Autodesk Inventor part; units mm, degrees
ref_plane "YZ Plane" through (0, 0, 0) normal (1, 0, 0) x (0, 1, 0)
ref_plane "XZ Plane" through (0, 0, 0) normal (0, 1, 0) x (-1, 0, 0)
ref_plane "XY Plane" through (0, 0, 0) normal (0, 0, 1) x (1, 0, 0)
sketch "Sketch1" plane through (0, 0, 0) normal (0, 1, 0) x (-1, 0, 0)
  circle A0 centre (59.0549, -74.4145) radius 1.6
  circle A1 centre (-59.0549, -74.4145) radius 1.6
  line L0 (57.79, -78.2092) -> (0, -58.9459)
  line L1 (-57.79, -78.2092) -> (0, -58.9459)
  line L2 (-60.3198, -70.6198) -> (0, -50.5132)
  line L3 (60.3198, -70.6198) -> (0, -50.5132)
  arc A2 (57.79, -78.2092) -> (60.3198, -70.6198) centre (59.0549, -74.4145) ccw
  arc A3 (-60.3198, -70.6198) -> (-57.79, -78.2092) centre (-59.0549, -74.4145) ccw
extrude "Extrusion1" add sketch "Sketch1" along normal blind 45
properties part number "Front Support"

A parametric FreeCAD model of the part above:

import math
import FreeCAD as App
import Part
import Sketcher
from FreeCAD import Vector
Q = App.Units.Quantity

doc = App.newDocument("Part")
body = doc.addObject("PartDesign::Body", "Body")

# Sketch on XZ plane
sketch1 = body.newObject("Sketcher::SketchObject", "Sketch")
sketch1.AttachmentSupport = (doc.getObject("XZ_Plane"), [""])
sketch1.MapMode = "FlatFace"
sketch1.addGeometry([
    Part.LineSegment(Vector(0, -58.9459, 0), Vector(-57.79, -78.2092, 0)),  # 0
    Part.ArcOfCircle(Part.Circle(Vector(-59.0549, -74.4145, 0), Vector(0, 0, 1), 3.999965), math.radians(108.434949), math.radians(288.434949)),  # 1
    Part.LineSegment(Vector(-60.3198, -70.6198, 0), Vector(0, -50.5132, 0)),  # 2
    Part.LineSegment(Vector(0, -50.5132, 0), Vector(60.3198, -70.6198, 0)),  # 3
    Part.ArcOfCircle(Part.Circle(Vector(59.0549, -74.4145, 0), Vector(0, 0, 1), 3.999965), math.radians(-108.434949), math.radians(71.565051)),  # 4
    Part.LineSegment(Vector(57.79, -78.2092, 0), Vector(0, -58.9459, 0)),  # 5
    Part.Circle(Vector(59.0549, -74.4145, 0), Vector(0, 0, 1), 1.6),  # 6
    Part.Circle(Vector(-59.0549, -74.4145, 0), Vector(0, 0, 1), 1.6),  # 7
], False)
sketch1.addConstraint([
    Sketcher.Constraint("Tangent", 0, 2, 1, 2),
    Sketcher.Constraint("Tangent", 1, 1, 2, 1),
    Sketcher.Constraint("Coincident", 2, 2, 3, 1),
    Sketcher.Constraint("Tangent", 3, 2, 4, 2),
    Sketcher.Constraint("Tangent", 4, 1, 5, 1),
    Sketcher.Constraint("Coincident", 5, 2, 0, 1),
    Sketcher.Constraint("Coincident", 6, 3, 4, 3),
    Sketcher.Constraint("Coincident", 7, 3, 1, 3),
    Sketcher.Constraint("Equal", 1, 4),
    Sketcher.Constraint("Equal", 6, 7),
    Sketcher.Constraint("Symmetric", 1, 3, 4, 3, -2),
    Sketcher.Constraint("PointOnObject", 2, 2, -2),
    Sketcher.Constraint("PointOnObject", 5, 2, -2),
    Sketcher.Constraint("Parallel", 0, 2),
    Sketcher.Constraint("Radius", 1, Q("4 mm")),
    Sketcher.Constraint("Diameter", 6, Q("3.2 mm")),
    Sketcher.Constraint("DistanceX", 0, 2, -1, 1, Q("57.79 mm")),
    Sketcher.Constraint("Distance", 0, Q("60.916 mm")),
    Sketcher.Constraint("DistanceY", 5, 2, -1, 1, Q("58.946 mm")),
])
pad1 = body.newObject("PartDesign::Pad", "Pad")
pad1.Profile = sketch1
pad1.Length = 45
pad1.Reversed = True

doc.recompute()
